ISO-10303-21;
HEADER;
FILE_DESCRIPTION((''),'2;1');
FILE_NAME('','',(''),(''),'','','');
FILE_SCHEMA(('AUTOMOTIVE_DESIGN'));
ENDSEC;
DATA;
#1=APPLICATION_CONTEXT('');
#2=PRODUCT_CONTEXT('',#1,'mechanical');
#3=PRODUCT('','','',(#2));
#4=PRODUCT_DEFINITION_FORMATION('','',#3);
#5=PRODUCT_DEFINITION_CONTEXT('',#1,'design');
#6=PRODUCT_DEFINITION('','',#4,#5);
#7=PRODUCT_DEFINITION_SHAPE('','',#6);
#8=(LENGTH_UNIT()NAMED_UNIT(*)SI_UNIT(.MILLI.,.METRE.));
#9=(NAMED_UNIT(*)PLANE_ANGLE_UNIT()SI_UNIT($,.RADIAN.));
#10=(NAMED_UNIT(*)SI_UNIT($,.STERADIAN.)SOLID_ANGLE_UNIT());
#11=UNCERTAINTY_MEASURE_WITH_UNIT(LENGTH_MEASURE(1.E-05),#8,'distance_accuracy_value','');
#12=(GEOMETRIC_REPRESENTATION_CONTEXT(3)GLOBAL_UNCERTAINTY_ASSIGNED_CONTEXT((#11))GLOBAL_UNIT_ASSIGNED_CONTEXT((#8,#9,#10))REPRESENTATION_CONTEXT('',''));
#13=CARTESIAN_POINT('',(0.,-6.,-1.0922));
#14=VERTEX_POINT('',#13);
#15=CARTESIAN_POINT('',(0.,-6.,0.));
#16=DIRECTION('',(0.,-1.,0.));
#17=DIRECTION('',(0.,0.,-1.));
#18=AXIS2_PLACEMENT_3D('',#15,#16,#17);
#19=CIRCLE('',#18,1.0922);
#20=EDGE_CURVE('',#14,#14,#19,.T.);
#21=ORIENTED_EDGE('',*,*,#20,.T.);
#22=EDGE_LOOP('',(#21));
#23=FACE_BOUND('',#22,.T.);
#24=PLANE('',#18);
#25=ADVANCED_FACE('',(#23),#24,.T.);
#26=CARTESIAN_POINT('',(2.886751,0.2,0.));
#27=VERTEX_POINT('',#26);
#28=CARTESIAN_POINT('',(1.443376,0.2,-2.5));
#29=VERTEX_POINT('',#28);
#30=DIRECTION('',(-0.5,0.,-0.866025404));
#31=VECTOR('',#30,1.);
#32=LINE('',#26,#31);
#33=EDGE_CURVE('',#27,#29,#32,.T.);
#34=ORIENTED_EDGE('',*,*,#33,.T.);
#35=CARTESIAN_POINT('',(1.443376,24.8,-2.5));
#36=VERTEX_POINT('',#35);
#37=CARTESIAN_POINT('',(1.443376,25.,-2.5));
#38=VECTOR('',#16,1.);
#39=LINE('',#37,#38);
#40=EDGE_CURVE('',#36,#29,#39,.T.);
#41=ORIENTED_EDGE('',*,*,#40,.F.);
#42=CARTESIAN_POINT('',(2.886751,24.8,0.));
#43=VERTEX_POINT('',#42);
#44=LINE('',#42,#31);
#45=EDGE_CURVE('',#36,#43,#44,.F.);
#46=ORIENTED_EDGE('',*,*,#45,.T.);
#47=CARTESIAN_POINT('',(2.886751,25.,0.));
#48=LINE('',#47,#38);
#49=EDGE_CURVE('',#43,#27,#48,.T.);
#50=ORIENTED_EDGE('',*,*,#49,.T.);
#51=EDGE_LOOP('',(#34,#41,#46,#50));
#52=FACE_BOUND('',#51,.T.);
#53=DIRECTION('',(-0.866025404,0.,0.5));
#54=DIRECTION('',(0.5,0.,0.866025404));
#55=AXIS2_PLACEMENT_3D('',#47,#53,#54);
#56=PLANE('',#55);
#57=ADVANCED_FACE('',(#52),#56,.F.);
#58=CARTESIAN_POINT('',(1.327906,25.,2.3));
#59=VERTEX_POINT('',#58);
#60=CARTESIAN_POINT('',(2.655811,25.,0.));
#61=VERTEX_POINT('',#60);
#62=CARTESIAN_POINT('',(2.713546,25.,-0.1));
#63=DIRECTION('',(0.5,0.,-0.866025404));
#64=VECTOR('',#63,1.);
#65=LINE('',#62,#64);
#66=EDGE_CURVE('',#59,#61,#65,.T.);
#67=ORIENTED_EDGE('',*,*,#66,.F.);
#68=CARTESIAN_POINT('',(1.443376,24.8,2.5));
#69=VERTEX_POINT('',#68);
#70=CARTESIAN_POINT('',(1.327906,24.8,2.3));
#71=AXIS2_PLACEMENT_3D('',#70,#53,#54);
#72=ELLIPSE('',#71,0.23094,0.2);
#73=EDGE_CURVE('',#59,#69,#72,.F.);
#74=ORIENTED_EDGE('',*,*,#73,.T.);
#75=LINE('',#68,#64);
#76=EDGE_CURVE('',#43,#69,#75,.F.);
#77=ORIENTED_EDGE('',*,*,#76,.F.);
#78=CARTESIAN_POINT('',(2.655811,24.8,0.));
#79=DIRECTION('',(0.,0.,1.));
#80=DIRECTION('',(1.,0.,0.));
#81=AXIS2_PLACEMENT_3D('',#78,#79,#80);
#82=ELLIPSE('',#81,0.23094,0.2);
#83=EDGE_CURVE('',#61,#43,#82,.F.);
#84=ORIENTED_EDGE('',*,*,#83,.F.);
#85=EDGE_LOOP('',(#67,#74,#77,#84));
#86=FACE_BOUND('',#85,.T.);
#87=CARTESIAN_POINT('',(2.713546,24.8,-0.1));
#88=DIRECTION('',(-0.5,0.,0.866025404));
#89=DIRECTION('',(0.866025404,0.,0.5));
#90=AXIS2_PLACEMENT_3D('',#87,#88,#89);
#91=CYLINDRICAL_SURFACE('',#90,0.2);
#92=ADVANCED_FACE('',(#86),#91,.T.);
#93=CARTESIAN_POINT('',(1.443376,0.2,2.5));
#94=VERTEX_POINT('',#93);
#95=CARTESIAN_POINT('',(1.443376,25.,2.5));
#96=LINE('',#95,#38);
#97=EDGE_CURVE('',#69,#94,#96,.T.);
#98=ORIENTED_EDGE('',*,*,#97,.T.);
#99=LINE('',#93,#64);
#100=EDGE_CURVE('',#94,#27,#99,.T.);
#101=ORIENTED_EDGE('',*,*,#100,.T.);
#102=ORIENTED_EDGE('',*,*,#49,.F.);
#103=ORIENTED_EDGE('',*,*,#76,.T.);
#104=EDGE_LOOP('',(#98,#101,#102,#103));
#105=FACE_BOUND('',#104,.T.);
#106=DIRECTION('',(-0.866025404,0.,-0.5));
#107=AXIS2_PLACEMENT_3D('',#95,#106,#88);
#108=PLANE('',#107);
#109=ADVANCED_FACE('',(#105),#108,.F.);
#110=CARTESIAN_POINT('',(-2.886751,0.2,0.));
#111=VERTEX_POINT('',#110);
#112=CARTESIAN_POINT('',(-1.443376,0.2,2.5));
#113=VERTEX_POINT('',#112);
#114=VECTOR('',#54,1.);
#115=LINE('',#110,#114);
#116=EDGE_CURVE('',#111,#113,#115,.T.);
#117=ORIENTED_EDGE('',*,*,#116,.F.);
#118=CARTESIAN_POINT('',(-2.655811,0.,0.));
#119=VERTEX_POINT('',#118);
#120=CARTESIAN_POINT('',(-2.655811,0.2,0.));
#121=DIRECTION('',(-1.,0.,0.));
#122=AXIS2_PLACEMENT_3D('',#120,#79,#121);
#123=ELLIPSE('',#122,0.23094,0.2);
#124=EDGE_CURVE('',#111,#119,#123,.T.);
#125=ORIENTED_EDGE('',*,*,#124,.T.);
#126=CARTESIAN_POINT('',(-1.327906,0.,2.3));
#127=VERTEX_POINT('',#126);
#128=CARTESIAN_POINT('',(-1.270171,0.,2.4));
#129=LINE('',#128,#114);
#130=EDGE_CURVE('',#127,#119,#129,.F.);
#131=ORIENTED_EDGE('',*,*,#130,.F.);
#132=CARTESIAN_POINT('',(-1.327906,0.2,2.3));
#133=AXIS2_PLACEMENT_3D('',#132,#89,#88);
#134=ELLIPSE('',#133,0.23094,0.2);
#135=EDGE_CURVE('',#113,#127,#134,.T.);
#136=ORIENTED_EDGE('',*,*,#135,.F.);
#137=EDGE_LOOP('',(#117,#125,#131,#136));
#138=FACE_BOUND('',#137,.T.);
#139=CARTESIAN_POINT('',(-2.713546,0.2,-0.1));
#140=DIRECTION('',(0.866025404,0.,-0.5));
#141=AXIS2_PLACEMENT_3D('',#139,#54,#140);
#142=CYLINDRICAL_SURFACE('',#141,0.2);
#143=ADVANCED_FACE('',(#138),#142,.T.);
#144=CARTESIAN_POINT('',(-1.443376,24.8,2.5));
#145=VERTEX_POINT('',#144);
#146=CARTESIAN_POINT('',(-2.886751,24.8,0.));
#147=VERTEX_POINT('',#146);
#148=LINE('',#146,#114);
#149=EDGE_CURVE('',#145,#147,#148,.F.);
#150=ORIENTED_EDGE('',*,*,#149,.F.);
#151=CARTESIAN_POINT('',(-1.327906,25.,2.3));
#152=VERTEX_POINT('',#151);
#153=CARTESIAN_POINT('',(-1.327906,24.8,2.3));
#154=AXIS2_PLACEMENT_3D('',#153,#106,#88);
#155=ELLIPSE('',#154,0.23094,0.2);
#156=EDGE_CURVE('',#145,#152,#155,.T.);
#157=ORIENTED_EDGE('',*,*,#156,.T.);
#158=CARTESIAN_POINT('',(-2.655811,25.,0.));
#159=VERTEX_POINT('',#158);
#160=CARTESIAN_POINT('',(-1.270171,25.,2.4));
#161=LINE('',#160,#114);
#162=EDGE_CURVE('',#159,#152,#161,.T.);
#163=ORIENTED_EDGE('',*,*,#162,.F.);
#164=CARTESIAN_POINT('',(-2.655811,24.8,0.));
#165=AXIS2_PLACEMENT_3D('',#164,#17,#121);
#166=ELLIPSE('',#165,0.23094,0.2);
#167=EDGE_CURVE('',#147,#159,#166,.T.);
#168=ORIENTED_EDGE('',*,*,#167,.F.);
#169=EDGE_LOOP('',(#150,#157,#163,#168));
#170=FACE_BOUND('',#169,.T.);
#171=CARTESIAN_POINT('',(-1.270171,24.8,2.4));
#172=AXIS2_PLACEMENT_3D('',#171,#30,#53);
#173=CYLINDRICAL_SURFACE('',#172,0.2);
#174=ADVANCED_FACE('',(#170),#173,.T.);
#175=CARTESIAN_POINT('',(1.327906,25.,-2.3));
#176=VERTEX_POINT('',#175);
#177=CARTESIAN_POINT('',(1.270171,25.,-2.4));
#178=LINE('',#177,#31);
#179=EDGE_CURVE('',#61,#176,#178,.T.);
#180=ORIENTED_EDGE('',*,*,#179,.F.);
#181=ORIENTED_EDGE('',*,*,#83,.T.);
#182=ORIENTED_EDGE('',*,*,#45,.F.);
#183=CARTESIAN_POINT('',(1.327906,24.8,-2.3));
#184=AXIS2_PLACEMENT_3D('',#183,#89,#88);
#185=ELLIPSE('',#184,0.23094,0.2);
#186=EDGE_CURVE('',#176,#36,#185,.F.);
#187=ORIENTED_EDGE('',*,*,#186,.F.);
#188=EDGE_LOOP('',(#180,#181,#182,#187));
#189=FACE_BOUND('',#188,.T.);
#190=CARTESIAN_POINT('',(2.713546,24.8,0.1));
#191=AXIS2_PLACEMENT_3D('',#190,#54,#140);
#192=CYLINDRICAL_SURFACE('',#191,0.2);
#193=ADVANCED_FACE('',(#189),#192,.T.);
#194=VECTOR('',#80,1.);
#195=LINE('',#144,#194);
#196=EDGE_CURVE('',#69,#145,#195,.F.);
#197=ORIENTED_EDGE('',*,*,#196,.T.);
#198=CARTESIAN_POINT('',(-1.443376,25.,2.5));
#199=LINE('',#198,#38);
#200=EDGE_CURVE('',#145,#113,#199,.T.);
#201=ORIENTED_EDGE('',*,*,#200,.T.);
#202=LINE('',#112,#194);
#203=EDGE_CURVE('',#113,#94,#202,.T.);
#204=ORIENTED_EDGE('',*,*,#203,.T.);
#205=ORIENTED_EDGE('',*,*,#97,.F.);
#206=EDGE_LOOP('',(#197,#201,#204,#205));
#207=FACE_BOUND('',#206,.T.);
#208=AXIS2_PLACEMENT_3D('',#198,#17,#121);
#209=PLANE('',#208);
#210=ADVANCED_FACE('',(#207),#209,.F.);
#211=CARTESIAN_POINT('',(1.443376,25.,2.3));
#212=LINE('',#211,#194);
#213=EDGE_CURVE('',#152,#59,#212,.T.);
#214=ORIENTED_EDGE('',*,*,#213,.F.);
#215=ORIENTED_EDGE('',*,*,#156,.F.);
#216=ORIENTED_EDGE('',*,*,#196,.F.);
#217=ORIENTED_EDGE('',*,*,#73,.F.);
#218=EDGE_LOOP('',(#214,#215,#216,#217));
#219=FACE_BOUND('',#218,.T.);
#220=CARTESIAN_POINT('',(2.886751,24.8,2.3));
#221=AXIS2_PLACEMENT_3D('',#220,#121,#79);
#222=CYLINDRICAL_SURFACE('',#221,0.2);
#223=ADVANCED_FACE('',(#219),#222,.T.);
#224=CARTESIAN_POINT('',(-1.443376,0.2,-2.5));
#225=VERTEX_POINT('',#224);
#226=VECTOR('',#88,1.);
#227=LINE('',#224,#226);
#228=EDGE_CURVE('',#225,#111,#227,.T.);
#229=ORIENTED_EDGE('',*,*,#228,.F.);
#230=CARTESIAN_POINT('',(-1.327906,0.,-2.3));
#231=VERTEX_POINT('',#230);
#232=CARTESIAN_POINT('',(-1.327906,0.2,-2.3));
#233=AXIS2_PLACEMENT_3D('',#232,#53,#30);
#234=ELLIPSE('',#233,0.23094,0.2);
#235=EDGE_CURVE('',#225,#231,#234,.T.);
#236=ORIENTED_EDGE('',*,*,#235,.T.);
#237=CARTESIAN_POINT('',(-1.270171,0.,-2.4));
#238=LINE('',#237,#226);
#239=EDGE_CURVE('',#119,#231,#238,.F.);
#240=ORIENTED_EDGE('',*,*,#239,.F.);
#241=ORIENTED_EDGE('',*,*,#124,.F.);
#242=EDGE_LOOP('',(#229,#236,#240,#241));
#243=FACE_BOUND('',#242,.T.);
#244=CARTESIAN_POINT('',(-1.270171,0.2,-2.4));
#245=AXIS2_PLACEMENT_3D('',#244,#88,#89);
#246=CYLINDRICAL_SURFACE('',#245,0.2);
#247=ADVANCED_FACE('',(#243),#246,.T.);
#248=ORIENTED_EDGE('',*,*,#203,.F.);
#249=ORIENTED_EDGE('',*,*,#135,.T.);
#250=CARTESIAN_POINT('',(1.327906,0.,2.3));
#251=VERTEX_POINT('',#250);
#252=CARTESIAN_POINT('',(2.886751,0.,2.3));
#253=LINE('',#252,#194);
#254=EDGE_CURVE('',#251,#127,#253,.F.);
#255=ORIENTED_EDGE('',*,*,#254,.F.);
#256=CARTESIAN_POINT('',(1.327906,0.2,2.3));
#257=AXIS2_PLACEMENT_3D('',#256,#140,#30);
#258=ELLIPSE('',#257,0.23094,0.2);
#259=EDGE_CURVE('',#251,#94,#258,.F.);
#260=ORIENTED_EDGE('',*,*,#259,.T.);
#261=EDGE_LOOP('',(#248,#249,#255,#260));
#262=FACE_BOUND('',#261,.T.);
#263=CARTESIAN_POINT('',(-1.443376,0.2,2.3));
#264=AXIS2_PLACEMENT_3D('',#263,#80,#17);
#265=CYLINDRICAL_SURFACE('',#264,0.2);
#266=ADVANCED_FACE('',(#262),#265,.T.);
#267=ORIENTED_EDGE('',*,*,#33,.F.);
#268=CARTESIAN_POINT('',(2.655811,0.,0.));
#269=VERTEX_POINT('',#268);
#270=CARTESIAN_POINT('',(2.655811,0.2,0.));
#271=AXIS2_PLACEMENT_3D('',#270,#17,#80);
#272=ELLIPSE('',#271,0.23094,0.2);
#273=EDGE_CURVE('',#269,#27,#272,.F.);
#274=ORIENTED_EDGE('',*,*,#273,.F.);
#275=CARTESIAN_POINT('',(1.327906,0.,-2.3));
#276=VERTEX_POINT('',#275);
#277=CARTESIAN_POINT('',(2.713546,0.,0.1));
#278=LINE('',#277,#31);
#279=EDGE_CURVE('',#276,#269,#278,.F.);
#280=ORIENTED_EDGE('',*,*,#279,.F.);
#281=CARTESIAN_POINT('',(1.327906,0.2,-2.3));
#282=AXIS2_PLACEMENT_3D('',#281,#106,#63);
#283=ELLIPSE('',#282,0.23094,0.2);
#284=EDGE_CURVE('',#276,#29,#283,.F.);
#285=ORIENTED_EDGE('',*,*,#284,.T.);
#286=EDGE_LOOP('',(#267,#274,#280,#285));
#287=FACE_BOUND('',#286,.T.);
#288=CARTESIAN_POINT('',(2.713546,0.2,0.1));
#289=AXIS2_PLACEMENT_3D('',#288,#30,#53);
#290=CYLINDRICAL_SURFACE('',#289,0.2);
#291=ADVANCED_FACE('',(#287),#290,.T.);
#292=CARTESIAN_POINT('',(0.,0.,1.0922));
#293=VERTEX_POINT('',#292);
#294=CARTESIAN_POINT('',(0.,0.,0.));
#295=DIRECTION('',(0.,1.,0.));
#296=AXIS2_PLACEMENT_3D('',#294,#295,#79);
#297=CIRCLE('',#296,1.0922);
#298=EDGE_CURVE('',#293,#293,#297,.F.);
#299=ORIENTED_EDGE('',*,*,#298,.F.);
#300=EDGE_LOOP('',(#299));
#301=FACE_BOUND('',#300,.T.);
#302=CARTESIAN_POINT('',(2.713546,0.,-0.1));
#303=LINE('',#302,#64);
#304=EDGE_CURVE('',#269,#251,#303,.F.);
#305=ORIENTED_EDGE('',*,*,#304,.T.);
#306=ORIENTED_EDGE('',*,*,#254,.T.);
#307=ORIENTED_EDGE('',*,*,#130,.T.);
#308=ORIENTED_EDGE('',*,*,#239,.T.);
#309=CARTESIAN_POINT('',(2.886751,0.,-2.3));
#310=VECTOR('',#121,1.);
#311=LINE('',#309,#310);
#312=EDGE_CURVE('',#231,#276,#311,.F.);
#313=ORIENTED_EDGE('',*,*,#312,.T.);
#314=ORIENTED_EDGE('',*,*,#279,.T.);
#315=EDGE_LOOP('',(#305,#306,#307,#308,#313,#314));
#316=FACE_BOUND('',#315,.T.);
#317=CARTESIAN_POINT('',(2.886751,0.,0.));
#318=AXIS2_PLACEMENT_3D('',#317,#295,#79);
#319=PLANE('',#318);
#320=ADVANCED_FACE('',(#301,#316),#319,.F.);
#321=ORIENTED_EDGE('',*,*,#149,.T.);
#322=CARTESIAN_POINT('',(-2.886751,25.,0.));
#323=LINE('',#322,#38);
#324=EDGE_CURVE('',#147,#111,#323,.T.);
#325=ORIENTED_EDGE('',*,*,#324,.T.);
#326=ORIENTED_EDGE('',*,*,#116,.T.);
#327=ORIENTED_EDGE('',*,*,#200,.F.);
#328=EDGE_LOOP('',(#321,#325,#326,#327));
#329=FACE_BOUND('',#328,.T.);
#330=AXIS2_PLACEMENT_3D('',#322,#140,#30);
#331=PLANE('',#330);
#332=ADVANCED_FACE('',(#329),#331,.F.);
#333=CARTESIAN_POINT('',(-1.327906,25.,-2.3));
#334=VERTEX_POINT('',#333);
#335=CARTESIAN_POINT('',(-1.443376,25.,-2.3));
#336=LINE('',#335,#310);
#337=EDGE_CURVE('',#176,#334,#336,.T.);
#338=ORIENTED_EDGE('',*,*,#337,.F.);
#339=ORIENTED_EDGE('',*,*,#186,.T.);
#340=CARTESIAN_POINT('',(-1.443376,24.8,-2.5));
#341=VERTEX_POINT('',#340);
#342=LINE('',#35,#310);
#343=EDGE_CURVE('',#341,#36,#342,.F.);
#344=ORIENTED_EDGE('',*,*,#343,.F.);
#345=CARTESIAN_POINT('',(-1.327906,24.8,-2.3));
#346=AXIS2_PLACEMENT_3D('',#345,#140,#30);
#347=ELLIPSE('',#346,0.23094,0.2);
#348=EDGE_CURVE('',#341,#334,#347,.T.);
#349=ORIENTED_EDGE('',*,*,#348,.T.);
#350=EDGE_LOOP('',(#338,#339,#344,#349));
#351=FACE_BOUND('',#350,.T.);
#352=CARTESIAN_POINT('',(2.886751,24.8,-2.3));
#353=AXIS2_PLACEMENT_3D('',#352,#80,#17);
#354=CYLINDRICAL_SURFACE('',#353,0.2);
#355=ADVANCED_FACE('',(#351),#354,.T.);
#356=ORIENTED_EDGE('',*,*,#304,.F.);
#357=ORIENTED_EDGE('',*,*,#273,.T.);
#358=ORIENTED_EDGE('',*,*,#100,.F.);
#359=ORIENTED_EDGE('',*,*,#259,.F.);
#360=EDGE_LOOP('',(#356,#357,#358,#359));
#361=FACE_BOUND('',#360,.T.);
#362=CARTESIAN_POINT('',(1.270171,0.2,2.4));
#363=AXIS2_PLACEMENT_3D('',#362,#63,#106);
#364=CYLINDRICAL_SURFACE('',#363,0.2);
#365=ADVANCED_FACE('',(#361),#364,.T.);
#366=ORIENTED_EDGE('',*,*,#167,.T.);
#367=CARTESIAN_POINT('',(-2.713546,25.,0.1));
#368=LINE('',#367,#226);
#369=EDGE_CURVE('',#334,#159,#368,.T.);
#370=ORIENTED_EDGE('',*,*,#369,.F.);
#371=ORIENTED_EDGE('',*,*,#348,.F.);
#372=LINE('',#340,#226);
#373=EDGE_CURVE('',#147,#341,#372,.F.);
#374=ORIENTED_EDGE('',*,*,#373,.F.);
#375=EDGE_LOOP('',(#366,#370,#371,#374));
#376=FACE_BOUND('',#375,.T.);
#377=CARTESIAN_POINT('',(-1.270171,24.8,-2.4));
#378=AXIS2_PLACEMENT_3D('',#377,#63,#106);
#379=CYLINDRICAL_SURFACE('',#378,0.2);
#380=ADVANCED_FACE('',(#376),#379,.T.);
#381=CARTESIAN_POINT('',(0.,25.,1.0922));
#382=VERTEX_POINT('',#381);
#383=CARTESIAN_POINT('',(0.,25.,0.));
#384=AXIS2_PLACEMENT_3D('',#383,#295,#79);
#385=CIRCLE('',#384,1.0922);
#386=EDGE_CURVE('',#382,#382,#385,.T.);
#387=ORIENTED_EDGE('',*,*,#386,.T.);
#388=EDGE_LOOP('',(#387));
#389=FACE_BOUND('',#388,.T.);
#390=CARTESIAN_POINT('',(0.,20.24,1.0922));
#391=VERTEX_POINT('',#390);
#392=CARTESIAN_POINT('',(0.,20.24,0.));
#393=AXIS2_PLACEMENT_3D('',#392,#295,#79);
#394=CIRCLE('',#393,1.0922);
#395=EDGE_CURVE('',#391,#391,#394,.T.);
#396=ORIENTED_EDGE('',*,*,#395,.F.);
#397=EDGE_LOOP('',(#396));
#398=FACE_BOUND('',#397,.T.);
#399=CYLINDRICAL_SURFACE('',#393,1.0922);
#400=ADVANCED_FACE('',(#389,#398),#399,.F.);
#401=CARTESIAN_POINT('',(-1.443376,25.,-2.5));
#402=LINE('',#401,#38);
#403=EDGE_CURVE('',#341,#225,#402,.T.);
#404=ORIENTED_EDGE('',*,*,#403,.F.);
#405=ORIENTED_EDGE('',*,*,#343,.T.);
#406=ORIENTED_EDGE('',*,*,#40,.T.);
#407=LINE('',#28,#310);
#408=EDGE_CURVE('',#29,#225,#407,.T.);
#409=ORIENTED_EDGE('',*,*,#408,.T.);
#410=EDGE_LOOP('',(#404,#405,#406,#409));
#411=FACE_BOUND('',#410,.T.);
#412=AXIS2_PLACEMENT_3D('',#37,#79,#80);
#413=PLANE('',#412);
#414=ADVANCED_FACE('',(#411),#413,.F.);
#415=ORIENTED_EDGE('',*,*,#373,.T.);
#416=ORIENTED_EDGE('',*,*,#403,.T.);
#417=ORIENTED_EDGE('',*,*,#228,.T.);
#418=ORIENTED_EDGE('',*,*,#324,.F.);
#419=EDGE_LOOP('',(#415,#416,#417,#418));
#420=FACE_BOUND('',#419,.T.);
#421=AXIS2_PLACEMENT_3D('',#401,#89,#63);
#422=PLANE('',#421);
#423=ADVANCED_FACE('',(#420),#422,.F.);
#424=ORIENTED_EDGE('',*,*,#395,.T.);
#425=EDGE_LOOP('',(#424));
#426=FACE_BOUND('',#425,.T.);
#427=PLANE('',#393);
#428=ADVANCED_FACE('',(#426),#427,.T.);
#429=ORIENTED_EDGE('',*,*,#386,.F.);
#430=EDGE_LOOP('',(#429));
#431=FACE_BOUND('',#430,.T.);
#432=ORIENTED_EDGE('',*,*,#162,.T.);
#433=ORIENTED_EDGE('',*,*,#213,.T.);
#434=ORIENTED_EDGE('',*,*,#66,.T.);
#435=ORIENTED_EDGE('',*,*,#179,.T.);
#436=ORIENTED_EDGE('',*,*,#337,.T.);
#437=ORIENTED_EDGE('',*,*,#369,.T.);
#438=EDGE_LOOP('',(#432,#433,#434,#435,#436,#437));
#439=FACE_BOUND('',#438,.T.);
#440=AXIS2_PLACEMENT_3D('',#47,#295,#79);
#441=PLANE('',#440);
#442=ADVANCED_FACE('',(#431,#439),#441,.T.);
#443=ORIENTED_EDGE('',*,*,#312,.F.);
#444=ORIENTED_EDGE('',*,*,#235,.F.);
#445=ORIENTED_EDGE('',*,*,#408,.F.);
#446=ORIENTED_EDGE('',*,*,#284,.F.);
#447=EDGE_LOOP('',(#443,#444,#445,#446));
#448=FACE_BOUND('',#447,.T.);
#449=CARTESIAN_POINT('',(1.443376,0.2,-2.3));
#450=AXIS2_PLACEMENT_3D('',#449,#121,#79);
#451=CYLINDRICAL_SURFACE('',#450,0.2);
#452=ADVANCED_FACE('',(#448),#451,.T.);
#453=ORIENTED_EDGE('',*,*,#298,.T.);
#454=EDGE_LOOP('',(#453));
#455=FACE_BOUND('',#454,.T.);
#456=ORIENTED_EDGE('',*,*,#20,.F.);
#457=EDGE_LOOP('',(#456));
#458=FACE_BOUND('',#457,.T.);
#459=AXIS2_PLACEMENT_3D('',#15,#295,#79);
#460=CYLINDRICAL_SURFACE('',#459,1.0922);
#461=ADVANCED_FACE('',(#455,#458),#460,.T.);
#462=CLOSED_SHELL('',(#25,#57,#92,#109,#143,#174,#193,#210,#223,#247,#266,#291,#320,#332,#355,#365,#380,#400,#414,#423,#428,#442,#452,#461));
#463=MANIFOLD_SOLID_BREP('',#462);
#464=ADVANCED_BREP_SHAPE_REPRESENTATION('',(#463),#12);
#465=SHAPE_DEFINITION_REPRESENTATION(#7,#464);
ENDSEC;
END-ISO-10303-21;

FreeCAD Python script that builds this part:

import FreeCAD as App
import Part
import Sketcher
Q = App.Units.Quantity


def edges_at(feature, points):
    """Names of the edges that pass closest to the given points."""
    edges = feature.Shape.Edges
    near = lambda p: min(range(len(edges)), key=lambda i: edges[i].distToShape(Part.Vertex(*p))[0])
    return sorted({f"Edge{near(p) + 1}" for p in points})


def add_polygon(sketch, points):
    """Adds a closed chain of lines whose ends are joined by coincident constraints."""
    first, n = sketch.GeometryCount, len(points)
    for a, b in zip(points, points[1:] + points[:1]):
        sketch.addGeometry(Part.LineSegment(App.Vector(*a, 0), App.Vector(*b, 0)), False)
    for i in range(n):
        sketch.addConstraint(Sketcher.Constraint("Coincident", first + i, 2, first + (i + 1) % n, 1))

doc = App.newDocument("Part")
body = doc.addObject("PartDesign::Body", "Body")

sketch1 = body.newObject("Sketcher::SketchObject", "Sketch")
sketch1.AttachmentSupport = (doc.getObject("XZ_Plane"), [""])
sketch1.MapMode = "FlatFace"
add_polygon(sketch1, [(2.9, 0), (1.4, -2.5), (-1.4, -2.5), (-2.9, 0), (-1.4, 2.5), (1.4, 2.5)])
sketch1.addConstraint(Sketcher.Constraint("Horizontal", 1))
sketch1.addConstraint(Sketcher.Constraint("Horizontal", 4))
sketch1.addConstraint(Sketcher.Constraint("Symmetric", 0, 2, 3, 2, -1, 1))
sketch1.addConstraint(Sketcher.Constraint("Symmetric", 2, 2, 5, 2, -1, 1))
sketch1.addConstraint(Sketcher.Constraint("PointOnObject", 2, 2, -1))
sketch1.addConstraint(Sketcher.Constraint("Parallel", 2, 5))
sketch1.addConstraint(Sketcher.Constraint("Vertical", 1, 2, 3, 2))
sketch1.addConstraint(Sketcher.Constraint("Angle", 0, Q("-120 deg")))
sketch1.addConstraint(Sketcher.Constraint("DistanceY", 1, 2, 3, 2, Q("5 mm")))
sketch1.addConstraint(Sketcher.Constraint("DistanceX", 1, 2, 1, 1, Q("2.886751 mm")))
pad1 = body.newObject("PartDesign::Pad", "Pad")
pad1.Profile = sketch1
pad1.Length = 25
pad1.Reversed = True
doc.recompute()

fillet = body.newObject("PartDesign::Fillet", "Fillet")
fillet.Base = (pad1, edges_at(pad1, [
    (0, 25, -2.5),
    (-2.165, 25, -1.25),
    (-2.165, 25, 1.25),
    (0, 25, 2.5),
    (2.165, 25, 1.25),
    (0, 0, 2.5),
    (-2.165, 0, 1.25),
    (-2.165, 0, -1.25),
    (2.165, 25, -1.25),
    (0, 0, -2.5),
    (2.165, 0, -1.25),
    (2.165, 0, 1.25),
]))
fillet.Radius = 0.2

sketch2 = body.newObject("Sketcher::SketchObject", "Sketch001")
sketch2.AttachmentSupport = (doc.getObject("XZ_Plane"), [""])
sketch2.MapMode = "FlatFace"
sketch2.addGeometry(Part.Circle(App.Vector(0, 0, 0), App.Vector(0, 0, 1), 1.1), False)
sketch2.addConstraint(Sketcher.Constraint("Coincident", 0, 3, -1, 1))
sketch2.addConstraint(Sketcher.Constraint("Diameter", 0, Q("2.1844 mm")))
pad2 = body.newObject("PartDesign::Pad", "Pad001")
pad2.Profile = sketch2
pad2.Length = 6

sketch3 = body.newObject("Sketcher::SketchObject", "Sketch002")
sketch3.AttachmentSupport = (doc.getObject("XZ_Plane"), [""])
sketch3.MapMode = "FlatFace"
sketch3.AttachmentOffset = App.Placement(App.Vector(0, 0, -25), App.Rotation())
sketch3.addGeometry(Part.Circle(App.Vector(0, 0, 0), App.Vector(0, 0, 1), 1.1), False)
sketch3.addConstraint(Sketcher.Constraint("Coincident", 0, 3, -1, 1))
sketch3.addConstraint(Sketcher.Constraint("Diameter", 0, Q("2.1844 mm")))
pocket1 = body.newObject("PartDesign::Pocket", "Pocket")
pocket1.Profile = sketch3
pocket1.Length = 4.76
pocket1.Reversed = True

doc.recompute()
